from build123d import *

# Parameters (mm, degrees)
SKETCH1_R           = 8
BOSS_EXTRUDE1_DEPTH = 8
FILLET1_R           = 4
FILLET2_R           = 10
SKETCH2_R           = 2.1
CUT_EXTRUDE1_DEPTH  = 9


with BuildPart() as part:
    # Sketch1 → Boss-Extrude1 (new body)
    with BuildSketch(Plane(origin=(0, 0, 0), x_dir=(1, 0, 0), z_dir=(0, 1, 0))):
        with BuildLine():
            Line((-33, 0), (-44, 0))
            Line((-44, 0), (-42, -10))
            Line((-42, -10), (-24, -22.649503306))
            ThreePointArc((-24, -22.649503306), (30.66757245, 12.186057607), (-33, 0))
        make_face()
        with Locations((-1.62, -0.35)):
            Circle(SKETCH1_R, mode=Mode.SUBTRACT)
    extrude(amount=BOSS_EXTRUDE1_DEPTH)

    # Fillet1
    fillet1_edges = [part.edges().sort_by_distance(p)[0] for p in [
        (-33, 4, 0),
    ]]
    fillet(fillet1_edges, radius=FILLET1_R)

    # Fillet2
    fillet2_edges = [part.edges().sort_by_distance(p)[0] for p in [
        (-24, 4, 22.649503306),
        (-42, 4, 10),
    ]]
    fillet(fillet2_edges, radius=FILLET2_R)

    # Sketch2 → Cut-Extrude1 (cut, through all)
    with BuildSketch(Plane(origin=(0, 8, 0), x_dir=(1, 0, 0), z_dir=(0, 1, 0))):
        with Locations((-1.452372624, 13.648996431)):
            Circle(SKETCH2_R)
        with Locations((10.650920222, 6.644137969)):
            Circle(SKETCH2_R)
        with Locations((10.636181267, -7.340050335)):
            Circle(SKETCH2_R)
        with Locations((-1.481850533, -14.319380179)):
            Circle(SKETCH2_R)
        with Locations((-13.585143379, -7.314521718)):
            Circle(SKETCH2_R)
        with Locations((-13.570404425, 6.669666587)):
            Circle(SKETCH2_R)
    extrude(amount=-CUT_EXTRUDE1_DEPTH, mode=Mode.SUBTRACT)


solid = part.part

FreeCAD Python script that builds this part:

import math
import FreeCAD as App
import Part
import Sketcher
Q = App.Units.Quantity


def edges_at(feature, points):
    """Names of the edges that pass closest to the given points."""
    edges = feature.Shape.Edges
    near = lambda p: min(range(len(edges)), key=lambda i: edges[i].distToShape(Part.Vertex(*p))[0])
    return sorted({f"Edge{near(p) + 1}" for p in points})

doc = App.newDocument("Part")
body = doc.addObject("PartDesign::Body", "Body")

# Sketch on XZ plane
sketch1 = body.newObject("Sketcher::SketchObject", "Sketch")
sketch1.AttachmentSupport = (doc.getObject("XZ_Plane"), [""])
sketch1.MapMode = "FlatFace"
sketch1.addGeometry(Part.LineSegment(App.Vector(-33, 0, 0), App.Vector(-44, 0, 0)), False)
sketch1.addGeometry(Part.LineSegment(App.Vector(-44, 0, 0), App.Vector(-42, 10, 0)), False)
sketch1.addGeometry(Part.LineSegment(App.Vector(-42, 10, 0), App.Vector(-24, 23, 0)), False)
sketch1.addGeometry(Part.ArcOfCircle(Part.Circle(App.Vector(0, 0, 0), App.Vector(0, 0, 1), 33), math.radians(180), math.radians(497)), False)
sketch1.addGeometry(Part.Circle(App.Vector(-2, 0, 0), App.Vector(0, 0, 1), 8), False)
sketch1.addConstraint(Sketcher.Constraint("Coincident", 0, 2, 1, 1))
sketch1.addConstraint(Sketcher.Constraint("Coincident", 1, 2, 2, 1))
sketch1.addConstraint(Sketcher.Constraint("Coincident", 2, 2, 3, 2))
sketch1.addConstraint(Sketcher.Constraint("Coincident", 3, 1, 0, 1))
sketch1.addConstraint(Sketcher.Constraint("Horizontal", 0))
sketch1.addConstraint(Sketcher.Constraint("Coincident", 3, 3, -1, 1))
sketch1.addConstraint(Sketcher.Constraint("PointOnObject", 0, 2, -1))
sketch1.addConstraint(Sketcher.Constraint("Diameter", 4, Q("16 mm")))
sketch1.addConstraint(Sketcher.Constraint("Radius", 3, Q("33 mm")))
sketch1.addConstraint(Sketcher.Constraint("DistanceX", 0, 2, 0, 1, Q("11 mm")))
sketch1.addConstraint(Sketcher.Constraint("DistanceX", 1, 2, -1, 1, Q("42 mm")))
sketch1.addConstraint(Sketcher.Constraint("DistanceY", -1, 1, 1, 2, Q("10 mm")))
sketch1.addConstraint(Sketcher.Constraint("DistanceX", 2, 2, -1, 1, Q("24 mm")))
sketch1.addConstraint(Sketcher.Constraint("DistanceX", 4, 3, -1, 1, Q("1.62 mm")))
sketch1.addConstraint(Sketcher.Constraint("DistanceY", -1, 1, 4, 3, Q("0.35 mm")))
pad1 = body.newObject("PartDesign::Pad", "Pad")
pad1.Profile = sketch1
pad1.Length = 8
pad1.Reversed = True
doc.recompute()

fillet = body.newObject("PartDesign::Fillet", "Fillet")
fillet.Base = (pad1, edges_at(pad1, [(-33, 4, 0)]))
fillet.Radius = 4
doc.recompute()

fillet2 = body.newObject("PartDesign::Fillet", "Fillet001")
fillet2.Base = (fillet, edges_at(fillet, [(-24, 4, 22.65), (-42, 4, 10)]))
fillet2.Radius = 10

# Sketch on XZ plane
sketch2 = body.newObject("Sketcher::SketchObject", "Sketch001")
sketch2.AttachmentSupport = (doc.getObject("XZ_Plane"), [""])
sketch2.MapMode = "FlatFace"
sketch2.AttachmentOffset = App.Placement(App.Vector(0, 0, -8), App.Rotation())
sketch2.addGeometry(Part.Circle(App.Vector(-1.5, -13.6, 0), App.Vector(0, 0, 1), 2.1), False)
sketch2.addGeometry(Part.Circle(App.Vector(10.7, -6.6, 0), App.Vector(0, 0, 1), 2.1), False)
sketch2.addGeometry(Part.Circle(App.Vector(10.6, 7.3, 0), App.Vector(0, 0, 1), 2.1), False)
sketch2.addGeometry(Part.Circle(App.Vector(-1.5, 14.3, 0), App.Vector(0, 0, 1), 2.1), False)
sketch2.addGeometry(Part.Circle(App.Vector(-13.6, 7.3, 0), App.Vector(0, 0, 1), 2.1), False)
sketch2.addGeometry(Part.Circle(App.Vector(-13.6, -6.7, 0), App.Vector(0, 0, 1), 2.1), False)
sketch2.addConstraint(Sketcher.Constraint("Equal", 0, 1))
sketch2.addConstraint(Sketcher.Constraint("Equal", 1, 2))
sketch2.addConstraint(Sketcher.Constraint("Equal", 2, 3))
sketch2.addConstraint(Sketcher.Constraint("Equal", 3, 4))
sketch2.addConstraint(Sketcher.Constraint("Equal", 4, 5))
sketch2.addConstraint(Sketcher.Constraint("Diameter", 0, Q("4.2 mm")))
sketch2.addConstraint(Sketcher.Constraint("DistanceX", -1, 1, 1, 3, Q("10.65092 mm")))
sketch2.addConstraint(Sketcher.Constraint("DistanceX", -1, 1, 2, 3, Q("10.636181 mm")))
sketch2.addConstraint(Sketcher.Constraint("DistanceY", -1, 1, 2, 3, Q("7.34005 mm")))
sketch2.addConstraint(Sketcher.Constraint("DistanceX", 3, 3, -1, 1, Q("1.481851 mm")))
sketch2.addConstraint(Sketcher.Constraint("DistanceY", -1, 1, 3, 3, Q("14.31938 mm")))
sketch2.addConstraint(Sketcher.Constraint("DistanceY", -1, 1, 4, 3, Q("7.314522 mm")))
sketch2.addConstraint(Sketcher.Constraint("DistanceY", 0, 3, 1, 3, Q("7.004858 mm")))
sketch2.addConstraint(Sketcher.Constraint("DistanceY", 1, 3, 2, 3, Q("13.984188 mm")))
sketch2.addConstraint(Sketcher.Constraint("DistanceX", 4, 3, 0, 3, Q("12.132771 mm")))
sketch2.addConstraint(Sketcher.Constraint("DistanceX", 4, 3, 5, 3, Q("0.014739 mm")))
sketch2.addConstraint(Sketcher.Constraint("DistanceY", 5, 3, 4, 3, Q("13.984188 mm")))
sketch2.addConstraint(Sketcher.Constraint("DistanceX", 0, 3, -1, 1, Q("1.452373 mm")))
pocket1 = body.newObject("PartDesign::Pocket", "Pocket")
pocket1.Profile = sketch2
pocket1.Type = "ThroughAll"
pocket1.Reversed = True

doc.recompute()
